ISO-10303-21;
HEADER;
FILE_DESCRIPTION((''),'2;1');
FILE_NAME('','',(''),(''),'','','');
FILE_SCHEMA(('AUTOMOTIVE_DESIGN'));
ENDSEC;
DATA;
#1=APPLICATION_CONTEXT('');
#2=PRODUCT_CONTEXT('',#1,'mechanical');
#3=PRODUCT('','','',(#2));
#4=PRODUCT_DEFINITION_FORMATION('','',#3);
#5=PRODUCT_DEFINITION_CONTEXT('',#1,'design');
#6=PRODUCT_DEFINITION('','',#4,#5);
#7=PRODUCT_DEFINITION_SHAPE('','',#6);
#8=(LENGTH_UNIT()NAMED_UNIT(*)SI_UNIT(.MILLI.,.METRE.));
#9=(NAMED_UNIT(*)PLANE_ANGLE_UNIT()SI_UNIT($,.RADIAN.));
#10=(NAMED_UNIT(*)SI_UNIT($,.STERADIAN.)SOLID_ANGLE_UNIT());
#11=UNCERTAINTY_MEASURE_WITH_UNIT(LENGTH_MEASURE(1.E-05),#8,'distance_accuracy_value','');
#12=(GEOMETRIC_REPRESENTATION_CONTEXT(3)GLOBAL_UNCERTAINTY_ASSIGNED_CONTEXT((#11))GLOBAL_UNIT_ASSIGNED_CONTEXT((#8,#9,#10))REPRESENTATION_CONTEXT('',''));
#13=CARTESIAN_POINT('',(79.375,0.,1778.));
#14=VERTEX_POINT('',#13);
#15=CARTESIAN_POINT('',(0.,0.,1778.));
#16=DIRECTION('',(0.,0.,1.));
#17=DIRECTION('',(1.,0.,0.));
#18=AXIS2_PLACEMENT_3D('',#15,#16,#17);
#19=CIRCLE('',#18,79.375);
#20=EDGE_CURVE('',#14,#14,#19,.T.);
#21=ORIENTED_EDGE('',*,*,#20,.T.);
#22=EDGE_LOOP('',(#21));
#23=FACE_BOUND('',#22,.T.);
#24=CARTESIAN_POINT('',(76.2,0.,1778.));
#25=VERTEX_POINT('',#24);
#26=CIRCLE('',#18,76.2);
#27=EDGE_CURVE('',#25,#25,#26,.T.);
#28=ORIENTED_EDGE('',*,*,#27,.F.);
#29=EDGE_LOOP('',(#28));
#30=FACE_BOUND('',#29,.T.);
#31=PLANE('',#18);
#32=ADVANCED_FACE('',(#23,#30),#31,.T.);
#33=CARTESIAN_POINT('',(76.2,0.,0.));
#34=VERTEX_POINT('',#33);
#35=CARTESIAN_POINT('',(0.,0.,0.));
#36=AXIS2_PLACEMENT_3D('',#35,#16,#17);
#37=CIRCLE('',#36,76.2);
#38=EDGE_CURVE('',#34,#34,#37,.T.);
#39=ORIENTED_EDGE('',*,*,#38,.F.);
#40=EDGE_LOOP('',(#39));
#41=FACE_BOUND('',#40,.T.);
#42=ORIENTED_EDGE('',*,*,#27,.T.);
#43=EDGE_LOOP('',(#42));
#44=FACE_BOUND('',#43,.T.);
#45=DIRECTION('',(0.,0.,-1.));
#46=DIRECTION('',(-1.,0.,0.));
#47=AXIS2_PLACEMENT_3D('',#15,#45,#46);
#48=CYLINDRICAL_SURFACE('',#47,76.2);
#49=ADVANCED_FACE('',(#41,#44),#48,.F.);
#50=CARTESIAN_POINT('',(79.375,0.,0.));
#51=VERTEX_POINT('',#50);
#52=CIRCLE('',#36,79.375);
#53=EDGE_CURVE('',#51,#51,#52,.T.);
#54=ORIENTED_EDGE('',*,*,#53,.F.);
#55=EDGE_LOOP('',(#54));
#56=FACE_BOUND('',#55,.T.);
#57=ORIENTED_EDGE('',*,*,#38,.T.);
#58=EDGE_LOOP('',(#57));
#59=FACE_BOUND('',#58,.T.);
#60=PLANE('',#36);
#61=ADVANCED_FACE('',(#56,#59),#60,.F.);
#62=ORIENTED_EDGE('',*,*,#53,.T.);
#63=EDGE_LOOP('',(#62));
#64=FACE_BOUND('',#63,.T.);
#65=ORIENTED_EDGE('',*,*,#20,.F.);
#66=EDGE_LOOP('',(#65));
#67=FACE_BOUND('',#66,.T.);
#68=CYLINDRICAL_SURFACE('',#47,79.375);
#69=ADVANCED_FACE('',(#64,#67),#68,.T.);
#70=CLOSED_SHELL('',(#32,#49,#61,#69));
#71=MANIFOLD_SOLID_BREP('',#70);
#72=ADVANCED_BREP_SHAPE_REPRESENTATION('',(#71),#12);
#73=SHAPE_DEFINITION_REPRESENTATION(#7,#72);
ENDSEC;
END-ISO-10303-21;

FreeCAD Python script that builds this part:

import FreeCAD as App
import Part
import Sketcher
from FreeCAD import Vector
Q = App.Units.Quantity

doc = App.newDocument("Part")
params = doc.addObject("Spreadsheet::Sheet", "Params")
for row, (alias, value) in enumerate([
    ("sketch1_diameter", "6 in"),
    ("sketch1_diameter2", "6.25 in"),
    ("pad1_length", "70 in"),
], start=1):
    params.set(f"A{row}", alias)
    params.set(f"B{row}", "=" + value)
    params.setAlias(f"B{row}", alias)

body = doc.addObject("PartDesign::Body", "Body")

# Sketch on XY plane
sketch1 = body.newObject("Sketcher::SketchObject", "Sketch")
sketch1.AttachmentSupport = (doc.getObject("XY_Plane"), [""])
sketch1.MapMode = "FlatFace"
sketch1.addGeometry([
    Part.Circle(Vector(0, 0, 0), Vector(0, 0, 1), 79.375),
    Part.Circle(Vector(0, 0, 0), Vector(0, 0, 1), 76.2),
], False)
sketch1.addConstraint([
    Sketcher.Constraint("Coincident", 0, 3, -1, 1),
    Sketcher.Constraint("Coincident", 1, 3, -1, 1),
    Sketcher.Constraint("Diameter", 1, Q("6 in")),
    Sketcher.Constraint("Diameter", 0, Q("6.25 in")),
])
sketch1.setExpression("Constraints[2]", "Params.sketch1_diameter")
sketch1.setExpression("Constraints[3]", "Params.sketch1_diameter2")
pad1 = body.newObject("PartDesign::Pad", "Pad")
pad1.Profile = sketch1
pad1.setExpression("Length", "Params.pad1_length")

doc.recompute()
